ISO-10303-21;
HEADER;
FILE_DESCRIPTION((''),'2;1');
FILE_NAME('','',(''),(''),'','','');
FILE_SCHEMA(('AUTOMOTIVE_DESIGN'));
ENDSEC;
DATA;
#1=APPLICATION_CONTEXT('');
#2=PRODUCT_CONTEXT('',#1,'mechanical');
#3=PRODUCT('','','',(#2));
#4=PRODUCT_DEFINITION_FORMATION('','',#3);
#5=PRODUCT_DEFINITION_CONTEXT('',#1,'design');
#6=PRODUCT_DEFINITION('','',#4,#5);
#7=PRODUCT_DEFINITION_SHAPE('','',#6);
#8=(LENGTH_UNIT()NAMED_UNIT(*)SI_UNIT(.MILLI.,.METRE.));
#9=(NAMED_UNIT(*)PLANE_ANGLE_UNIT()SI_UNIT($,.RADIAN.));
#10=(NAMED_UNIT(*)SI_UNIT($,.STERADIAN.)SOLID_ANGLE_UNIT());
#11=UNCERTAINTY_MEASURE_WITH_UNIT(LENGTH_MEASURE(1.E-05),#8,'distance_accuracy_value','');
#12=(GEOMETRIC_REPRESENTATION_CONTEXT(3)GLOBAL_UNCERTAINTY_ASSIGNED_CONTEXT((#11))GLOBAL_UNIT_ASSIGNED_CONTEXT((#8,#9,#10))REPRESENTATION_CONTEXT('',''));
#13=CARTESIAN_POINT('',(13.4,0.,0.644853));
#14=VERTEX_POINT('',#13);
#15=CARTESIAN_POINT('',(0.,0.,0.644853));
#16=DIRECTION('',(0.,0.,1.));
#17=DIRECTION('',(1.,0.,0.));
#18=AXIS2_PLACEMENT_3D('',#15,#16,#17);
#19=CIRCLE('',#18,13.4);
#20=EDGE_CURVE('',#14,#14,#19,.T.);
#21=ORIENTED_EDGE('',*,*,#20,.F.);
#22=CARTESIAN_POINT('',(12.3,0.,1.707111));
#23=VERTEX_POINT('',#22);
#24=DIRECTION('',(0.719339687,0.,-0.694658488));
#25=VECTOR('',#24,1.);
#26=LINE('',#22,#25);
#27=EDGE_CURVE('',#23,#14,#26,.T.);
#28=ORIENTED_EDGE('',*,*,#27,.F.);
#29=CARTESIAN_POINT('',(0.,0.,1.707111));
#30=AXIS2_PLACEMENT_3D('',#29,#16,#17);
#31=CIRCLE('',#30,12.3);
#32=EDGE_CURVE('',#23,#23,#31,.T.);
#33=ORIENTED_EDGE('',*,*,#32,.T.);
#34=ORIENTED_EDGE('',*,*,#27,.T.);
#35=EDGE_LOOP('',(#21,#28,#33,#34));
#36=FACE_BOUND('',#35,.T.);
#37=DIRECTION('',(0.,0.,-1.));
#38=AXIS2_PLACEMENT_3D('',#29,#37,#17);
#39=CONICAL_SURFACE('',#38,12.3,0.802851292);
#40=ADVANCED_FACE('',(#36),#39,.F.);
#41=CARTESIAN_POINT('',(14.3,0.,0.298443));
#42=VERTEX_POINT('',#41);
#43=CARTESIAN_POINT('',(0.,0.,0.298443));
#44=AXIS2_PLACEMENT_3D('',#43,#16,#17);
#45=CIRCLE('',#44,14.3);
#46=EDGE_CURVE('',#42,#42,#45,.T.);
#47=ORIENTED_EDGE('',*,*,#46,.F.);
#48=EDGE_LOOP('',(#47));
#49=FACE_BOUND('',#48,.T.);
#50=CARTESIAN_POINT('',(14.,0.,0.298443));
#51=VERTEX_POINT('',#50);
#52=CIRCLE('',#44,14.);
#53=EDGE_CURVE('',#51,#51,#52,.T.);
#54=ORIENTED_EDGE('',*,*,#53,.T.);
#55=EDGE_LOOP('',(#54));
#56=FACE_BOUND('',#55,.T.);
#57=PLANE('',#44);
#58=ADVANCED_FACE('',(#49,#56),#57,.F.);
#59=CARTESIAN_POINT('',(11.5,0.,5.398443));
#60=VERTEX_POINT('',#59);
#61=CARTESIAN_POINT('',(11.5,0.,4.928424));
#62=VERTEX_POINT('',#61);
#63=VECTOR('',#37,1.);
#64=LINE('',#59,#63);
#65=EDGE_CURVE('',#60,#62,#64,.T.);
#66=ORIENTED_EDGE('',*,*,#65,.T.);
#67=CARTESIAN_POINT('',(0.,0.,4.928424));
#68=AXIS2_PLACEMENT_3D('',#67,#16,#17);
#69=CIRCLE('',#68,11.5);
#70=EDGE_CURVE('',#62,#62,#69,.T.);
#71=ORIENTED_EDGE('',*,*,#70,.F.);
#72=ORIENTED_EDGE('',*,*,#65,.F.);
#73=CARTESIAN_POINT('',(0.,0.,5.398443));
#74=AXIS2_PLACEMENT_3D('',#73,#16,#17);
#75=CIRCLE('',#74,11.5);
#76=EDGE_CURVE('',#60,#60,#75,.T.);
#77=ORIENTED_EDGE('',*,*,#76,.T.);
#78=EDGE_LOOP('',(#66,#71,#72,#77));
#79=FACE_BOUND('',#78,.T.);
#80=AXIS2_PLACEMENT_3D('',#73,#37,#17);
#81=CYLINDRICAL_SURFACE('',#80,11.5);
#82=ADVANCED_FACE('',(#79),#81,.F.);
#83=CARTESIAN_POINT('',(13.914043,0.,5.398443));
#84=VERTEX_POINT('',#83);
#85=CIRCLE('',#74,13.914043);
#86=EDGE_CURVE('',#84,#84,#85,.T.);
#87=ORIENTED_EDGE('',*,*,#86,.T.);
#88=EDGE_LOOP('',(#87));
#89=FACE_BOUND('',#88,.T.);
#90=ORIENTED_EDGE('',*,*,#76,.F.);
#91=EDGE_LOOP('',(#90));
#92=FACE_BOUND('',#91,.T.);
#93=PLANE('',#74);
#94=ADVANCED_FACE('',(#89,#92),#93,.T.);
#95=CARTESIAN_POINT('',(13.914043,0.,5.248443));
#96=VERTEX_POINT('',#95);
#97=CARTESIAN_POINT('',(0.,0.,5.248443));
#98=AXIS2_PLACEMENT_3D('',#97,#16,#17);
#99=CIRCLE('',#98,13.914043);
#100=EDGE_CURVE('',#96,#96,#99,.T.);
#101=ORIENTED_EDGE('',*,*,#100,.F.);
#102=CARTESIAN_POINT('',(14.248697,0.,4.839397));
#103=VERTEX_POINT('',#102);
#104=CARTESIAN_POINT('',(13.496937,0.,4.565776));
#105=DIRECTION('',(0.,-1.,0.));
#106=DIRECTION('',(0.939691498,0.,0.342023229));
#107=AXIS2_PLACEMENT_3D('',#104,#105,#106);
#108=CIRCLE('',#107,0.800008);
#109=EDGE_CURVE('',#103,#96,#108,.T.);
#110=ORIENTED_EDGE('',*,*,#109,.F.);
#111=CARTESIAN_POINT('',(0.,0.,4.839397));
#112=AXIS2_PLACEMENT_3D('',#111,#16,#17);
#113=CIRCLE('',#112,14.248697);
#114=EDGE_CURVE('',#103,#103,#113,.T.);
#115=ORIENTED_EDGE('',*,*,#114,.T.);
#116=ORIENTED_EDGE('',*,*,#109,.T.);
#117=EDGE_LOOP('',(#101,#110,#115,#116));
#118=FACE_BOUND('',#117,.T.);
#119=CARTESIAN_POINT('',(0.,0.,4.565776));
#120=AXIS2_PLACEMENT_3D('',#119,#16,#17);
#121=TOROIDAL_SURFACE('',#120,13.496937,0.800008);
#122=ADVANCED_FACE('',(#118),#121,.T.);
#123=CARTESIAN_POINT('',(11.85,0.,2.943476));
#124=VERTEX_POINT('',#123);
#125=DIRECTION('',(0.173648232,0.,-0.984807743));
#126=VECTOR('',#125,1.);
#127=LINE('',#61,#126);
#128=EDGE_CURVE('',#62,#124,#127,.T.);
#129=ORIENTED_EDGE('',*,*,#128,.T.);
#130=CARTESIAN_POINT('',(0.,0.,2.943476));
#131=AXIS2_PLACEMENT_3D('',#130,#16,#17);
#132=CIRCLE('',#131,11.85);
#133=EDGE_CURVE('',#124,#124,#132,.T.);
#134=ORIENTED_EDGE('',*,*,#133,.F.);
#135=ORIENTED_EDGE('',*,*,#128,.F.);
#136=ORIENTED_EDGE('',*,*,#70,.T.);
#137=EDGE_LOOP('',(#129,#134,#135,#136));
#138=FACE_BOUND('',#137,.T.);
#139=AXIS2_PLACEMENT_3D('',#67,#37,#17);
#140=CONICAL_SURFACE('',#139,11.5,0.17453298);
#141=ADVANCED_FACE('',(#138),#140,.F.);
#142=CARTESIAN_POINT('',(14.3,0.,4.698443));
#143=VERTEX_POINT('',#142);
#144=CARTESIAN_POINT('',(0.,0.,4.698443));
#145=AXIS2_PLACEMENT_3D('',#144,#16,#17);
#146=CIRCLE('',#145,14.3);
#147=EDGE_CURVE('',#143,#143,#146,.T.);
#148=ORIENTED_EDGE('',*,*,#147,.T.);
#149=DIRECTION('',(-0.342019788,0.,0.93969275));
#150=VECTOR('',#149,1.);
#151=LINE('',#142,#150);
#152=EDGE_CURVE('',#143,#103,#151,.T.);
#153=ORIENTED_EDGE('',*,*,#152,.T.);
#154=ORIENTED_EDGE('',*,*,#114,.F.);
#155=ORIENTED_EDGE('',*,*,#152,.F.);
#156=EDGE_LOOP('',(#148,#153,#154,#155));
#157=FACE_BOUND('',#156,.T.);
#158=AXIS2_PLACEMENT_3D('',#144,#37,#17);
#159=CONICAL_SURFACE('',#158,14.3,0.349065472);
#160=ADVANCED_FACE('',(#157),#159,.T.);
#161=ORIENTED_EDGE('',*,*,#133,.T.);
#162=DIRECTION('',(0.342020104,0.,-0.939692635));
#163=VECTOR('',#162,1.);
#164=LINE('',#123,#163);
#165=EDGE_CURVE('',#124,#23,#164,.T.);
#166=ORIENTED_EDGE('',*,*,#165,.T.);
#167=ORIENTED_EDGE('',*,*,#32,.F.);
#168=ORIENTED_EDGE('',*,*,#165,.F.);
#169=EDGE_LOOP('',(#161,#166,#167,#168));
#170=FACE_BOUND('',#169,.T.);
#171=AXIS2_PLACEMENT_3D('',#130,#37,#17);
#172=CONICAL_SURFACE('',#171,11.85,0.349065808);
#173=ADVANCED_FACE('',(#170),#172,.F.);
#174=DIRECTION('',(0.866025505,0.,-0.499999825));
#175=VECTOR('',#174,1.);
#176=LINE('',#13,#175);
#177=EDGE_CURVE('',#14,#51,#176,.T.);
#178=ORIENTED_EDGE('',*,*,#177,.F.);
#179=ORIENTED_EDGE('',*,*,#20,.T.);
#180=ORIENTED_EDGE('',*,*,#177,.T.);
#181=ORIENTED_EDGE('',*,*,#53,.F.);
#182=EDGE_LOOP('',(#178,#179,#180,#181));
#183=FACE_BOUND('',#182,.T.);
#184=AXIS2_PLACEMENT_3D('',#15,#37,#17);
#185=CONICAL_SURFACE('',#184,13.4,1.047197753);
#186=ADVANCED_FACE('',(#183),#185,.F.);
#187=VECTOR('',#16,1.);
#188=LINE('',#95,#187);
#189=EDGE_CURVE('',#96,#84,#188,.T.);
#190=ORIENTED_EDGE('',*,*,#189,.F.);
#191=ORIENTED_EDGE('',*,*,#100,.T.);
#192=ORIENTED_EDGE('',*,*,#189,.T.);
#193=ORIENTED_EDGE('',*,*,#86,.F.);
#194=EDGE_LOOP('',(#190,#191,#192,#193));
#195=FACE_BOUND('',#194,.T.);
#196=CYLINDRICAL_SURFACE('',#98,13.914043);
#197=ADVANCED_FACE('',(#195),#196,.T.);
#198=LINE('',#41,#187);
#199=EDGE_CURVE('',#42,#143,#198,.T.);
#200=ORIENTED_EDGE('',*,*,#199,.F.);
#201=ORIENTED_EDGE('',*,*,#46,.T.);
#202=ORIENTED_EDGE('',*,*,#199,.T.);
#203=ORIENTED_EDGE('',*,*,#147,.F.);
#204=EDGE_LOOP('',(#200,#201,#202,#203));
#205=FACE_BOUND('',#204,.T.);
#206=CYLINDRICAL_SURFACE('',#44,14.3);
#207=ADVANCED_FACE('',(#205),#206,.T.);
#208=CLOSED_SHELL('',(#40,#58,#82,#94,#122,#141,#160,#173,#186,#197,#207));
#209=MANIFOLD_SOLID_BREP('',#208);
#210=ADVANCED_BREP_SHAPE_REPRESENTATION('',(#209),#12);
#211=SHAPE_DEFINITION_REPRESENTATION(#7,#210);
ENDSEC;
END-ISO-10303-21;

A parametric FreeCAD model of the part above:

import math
import FreeCAD as App
import Part
import Sketcher
Q = App.Units.Quantity

doc = App.newDocument("Part")
body = doc.addObject("PartDesign::Body", "Body")

sketch1 = doc.addObject("Sketcher::SketchObject", "Sketch")
body.addObject(sketch1)
sketch1.AttachmentSupport = (doc.XZ_Plane, [""])
sketch1.MapMode = "FlatFace"
sketch1.addGeometry(Part.LineSegment(App.Vector(12.3, 1.707111, 0), App.Vector(13.4, 0.644853, 0)), False)
sketch1.addGeometry(Part.LineSegment(App.Vector(13.4, 0.644853, 0), App.Vector(14, 0.298443, 0)), False)
sketch1.addGeometry(Part.LineSegment(App.Vector(14, 0.298443, 0), App.Vector(14.3, 0.298443, 0)), False)
sketch1.addGeometry(Part.LineSegment(App.Vector(14.3, 0.298443, 0), App.Vector(14.3, 4.698443, 0)), False)
sketch1.addGeometry(Part.LineSegment(App.Vector(14.3, 4.698443, 0), App.Vector(14.248697, 4.839397, 0)), False)
sketch1.addGeometry(Part.ArcOfCircle(Part.Circle(App.Vector(13.496937, 4.565776, 0), App.Vector(0, 0, 1), 0.800008), math.radians(20.000188), math.radians(58.575269)), False)
sketch1.addGeometry(Part.LineSegment(App.Vector(13.914043, 5.248443, 0), App.Vector(13.914043, 5.398443, 0)), False)
sketch1.addGeometry(Part.LineSegment(App.Vector(13.914043, 5.398443, 0), App.Vector(11.5, 5.398443, 0)), False)
sketch1.addGeometry(Part.LineSegment(App.Vector(11.5, 5.398443, 0), App.Vector(11.5, 4.928424, 0)), False)
sketch1.addGeometry(Part.LineSegment(App.Vector(11.5, 4.928424, 0), App.Vector(11.85, 2.943476, 0)), False)
sketch1.addGeometry(Part.LineSegment(App.Vector(11.85, 2.943476, 0), App.Vector(12.3, 1.707111, 0)), False)
sketch1.addConstraint(Sketcher.Constraint("Coincident", 0, 2, 1, 1))
sketch1.addConstraint(Sketcher.Constraint("Coincident", 1, 2, 2, 1))
sketch1.addConstraint(Sketcher.Constraint("Coincident", 2, 2, 3, 1))
sketch1.addConstraint(Sketcher.Constraint("Coincident", 3, 2, 4, 1))
sketch1.addConstraint(Sketcher.Constraint("Coincident", 4, 2, 5, 1))
sketch1.addConstraint(Sketcher.Constraint("Coincident", 5, 2, 6, 1))
sketch1.addConstraint(Sketcher.Constraint("Coincident", 6, 2, 7, 1))
sketch1.addConstraint(Sketcher.Constraint("Coincident", 7, 2, 8, 1))
sketch1.addConstraint(Sketcher.Constraint("Coincident", 8, 2, 9, 1))
sketch1.addConstraint(Sketcher.Constraint("Coincident", 9, 2, 10, 1))
sketch1.addConstraint(Sketcher.Constraint("Coincident", 10, 2, 0, 1))
sketch1.addConstraint(Sketcher.Constraint("Horizontal", 2))
sketch1.addConstraint(Sketcher.Constraint("Vertical", 3))
sketch1.addConstraint(Sketcher.Constraint("Vertical", 6))
sketch1.addConstraint(Sketcher.Constraint("Horizontal", 7))
sketch1.addConstraint(Sketcher.Constraint("Vertical", 8))
sketch1.addConstraint(Sketcher.Constraint("Parallel", 4, 10))
sketch1.addConstraint(Sketcher.Constraint("Angle", 0, Q("-44.000009 deg")))
sketch1.addConstraint(Sketcher.Constraint("Angle", 1, Q("-29.999988 deg")))
sketch1.addConstraint(Sketcher.Constraint("Angle", 9, Q("-79.999997 deg")))
sketch1.addConstraint(Sketcher.Constraint("Angle", 10, Q("-70.000002 deg")))
sketch1.addConstraint(Sketcher.Constraint("DistanceX", 2, 1, 2, 2, 0.3))
sketch1.addConstraint(Sketcher.Constraint("DistanceY", 3, 1, 3, 2, 4.4))
sketch1.addConstraint(Sketcher.Constraint("DistanceX", -1, 1, 1, 2, 14.0))
sketch1.addConstraint(Sketcher.Constraint("DistanceX", 10, 2, 2, 2, 2.0))
sketch1.addConstraint(Sketcher.Constraint("DistanceY", 6, 1, 6, 2, 0.15))
sketch1.addConstraint(Sketcher.Constraint("DistanceX", -1, 1, 0, 2, 13.4))
sketch1.addConstraint(Sketcher.Constraint("DistanceX", -1, 1, 7, 2, 11.5))
sketch1.addConstraint(Sketcher.Constraint("DistanceY", 3, 2, 6, 2, 0.7))
sketch1.addConstraint(Sketcher.Constraint("Distance", 4, 0.15))
sketch1.addConstraint(Sketcher.Constraint("DistanceX", -1, 1, 9, 2, 11.85))
sketch1.addConstraint(Sketcher.Constraint("Radius", 5, 0.800008))
sketch1.addConstraint(Sketcher.Constraint("DistanceY", 9, 2, 5, 3, 1.6223))
sketch1.addConstraint(Sketcher.Constraint("DistanceY", -1, 1, 10, 2, 1.707111))
revolution = doc.addObject("PartDesign::Revolution", "Revolution")
body.addObject(revolution)
revolution.Profile = sketch1
revolution.ReferenceAxis = (sketch1, ["V_Axis"])
revolution.Angle = 360

doc.recompute()
